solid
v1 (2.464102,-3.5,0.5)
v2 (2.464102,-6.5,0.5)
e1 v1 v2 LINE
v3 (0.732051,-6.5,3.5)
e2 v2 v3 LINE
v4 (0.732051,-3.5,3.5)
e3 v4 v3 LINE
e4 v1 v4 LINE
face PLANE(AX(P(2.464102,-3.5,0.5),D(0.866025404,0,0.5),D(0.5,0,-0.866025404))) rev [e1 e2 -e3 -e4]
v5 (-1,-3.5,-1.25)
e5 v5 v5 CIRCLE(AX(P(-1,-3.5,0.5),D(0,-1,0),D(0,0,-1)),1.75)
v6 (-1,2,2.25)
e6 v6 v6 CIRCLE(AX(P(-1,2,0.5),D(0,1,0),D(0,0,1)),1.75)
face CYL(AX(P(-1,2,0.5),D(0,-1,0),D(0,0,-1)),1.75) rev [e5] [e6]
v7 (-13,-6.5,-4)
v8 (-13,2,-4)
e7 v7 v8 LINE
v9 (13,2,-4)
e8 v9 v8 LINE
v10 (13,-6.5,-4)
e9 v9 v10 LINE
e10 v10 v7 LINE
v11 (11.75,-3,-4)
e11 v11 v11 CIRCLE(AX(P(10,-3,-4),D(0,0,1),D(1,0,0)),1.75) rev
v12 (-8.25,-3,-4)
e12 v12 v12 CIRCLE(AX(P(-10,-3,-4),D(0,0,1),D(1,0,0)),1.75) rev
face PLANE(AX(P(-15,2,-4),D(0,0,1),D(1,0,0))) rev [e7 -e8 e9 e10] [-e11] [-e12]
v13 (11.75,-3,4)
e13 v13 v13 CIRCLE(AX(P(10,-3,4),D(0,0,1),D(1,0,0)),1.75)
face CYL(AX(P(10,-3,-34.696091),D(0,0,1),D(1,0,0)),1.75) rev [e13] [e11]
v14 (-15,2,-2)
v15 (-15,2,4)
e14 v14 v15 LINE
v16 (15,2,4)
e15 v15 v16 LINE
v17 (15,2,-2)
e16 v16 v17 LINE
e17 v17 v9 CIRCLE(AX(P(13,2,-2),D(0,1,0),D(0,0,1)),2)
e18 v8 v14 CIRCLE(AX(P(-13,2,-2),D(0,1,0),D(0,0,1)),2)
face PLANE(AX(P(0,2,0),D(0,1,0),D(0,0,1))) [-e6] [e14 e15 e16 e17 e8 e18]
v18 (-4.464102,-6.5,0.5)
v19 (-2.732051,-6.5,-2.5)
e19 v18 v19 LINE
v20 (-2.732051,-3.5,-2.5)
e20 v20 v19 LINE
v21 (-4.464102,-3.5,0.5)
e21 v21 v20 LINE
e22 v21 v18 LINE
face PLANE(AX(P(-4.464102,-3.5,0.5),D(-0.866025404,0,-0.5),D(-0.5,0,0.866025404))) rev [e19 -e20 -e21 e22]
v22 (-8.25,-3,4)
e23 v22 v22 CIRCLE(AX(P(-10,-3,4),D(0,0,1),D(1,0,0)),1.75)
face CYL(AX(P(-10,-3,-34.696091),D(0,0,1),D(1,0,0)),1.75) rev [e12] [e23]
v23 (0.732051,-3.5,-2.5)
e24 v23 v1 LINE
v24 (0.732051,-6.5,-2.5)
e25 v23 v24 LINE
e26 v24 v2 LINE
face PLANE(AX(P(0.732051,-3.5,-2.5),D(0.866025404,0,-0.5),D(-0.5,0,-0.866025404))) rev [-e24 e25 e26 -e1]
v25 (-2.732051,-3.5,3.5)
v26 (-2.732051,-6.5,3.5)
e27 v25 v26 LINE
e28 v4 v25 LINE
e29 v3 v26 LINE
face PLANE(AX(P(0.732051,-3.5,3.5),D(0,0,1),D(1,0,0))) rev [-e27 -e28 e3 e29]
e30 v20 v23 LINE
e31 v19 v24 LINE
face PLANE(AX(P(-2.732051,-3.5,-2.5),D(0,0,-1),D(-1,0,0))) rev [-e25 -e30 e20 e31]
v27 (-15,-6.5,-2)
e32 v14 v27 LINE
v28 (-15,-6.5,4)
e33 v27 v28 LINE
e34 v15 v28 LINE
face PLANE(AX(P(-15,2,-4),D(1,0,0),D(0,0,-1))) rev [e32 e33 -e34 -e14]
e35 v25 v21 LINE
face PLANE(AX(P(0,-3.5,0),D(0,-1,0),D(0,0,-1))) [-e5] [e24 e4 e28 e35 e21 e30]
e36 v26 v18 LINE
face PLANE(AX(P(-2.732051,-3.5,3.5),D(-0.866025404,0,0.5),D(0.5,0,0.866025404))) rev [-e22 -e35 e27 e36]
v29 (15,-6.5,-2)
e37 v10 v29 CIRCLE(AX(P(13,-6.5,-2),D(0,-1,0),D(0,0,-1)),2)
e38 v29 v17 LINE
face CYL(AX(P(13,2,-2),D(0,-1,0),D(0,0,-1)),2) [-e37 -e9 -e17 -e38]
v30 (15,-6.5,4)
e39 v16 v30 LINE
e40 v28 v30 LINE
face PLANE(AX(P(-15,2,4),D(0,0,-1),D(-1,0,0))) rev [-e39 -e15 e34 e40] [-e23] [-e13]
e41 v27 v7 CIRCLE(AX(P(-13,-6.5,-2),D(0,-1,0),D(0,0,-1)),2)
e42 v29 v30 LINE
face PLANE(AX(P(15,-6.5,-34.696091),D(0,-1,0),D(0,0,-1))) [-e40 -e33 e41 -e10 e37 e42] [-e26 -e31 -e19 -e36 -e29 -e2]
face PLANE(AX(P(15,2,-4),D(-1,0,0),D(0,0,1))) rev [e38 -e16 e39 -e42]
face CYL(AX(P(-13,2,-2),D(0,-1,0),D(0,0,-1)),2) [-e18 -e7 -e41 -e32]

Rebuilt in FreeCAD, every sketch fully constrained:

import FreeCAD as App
import Part
import Sketcher
from FreeCAD import Vector
Q = App.Units.Quantity


def edges_at(feature, points):
    """Names of the edges that pass closest to the given points."""
    edges = feature.Shape.Edges
    near = lambda p: min(range(len(edges)), key=lambda i: edges[i].distToShape(Part.Vertex(*p))[0])
    return sorted({f"Edge{near(p) + 1}" for p in points})


def add_polygon(sketch, points):
    """Adds a closed chain of lines whose ends are joined by coincident constraints."""
    first, n = sketch.GeometryCount, len(points)
    for a, b in zip(points, points[1:] + points[:1]):
        sketch.addGeometry(Part.LineSegment(App.Vector(*a, 0), App.Vector(*b, 0)), False)
    for i in range(n):
        sketch.addConstraint(Sketcher.Constraint("Coincident", first + i, 2, first + (i + 1) % n, 1))

doc = App.newDocument("Part")
body = doc.addObject("PartDesign::Body", "Body")

sketch1 = body.newObject("Sketcher::SketchObject", "Sketch")
sketch1.AttachmentSupport = (doc.getObject("XZ_Plane"), [""])
sketch1.MapMode = "FlatFace"
add_polygon(sketch1, [(-15, -4), (-15, 4), (15, 4), (15, -4)])
sketch1.addGeometry(Part.Circle(Vector(-1, 0.5, 0), Vector(0, 0, 1), 1.8), False)
sketch1.addConstraint([
    Sketcher.Constraint("Vertical", 0),
    Sketcher.Constraint("Horizontal", 1),
    Sketcher.Constraint("Vertical", 2),
    Sketcher.Constraint("Horizontal", 3),
    Sketcher.Constraint("Symmetric", 0, 2, 2, 2, -1, 1),
    Sketcher.Constraint("Diameter", 4, 3.5),
    Sketcher.Constraint("DistanceX", 1, 1, 1, 2, 30.0),
    Sketcher.Constraint("DistanceY", 0, 1, 0, 2, 8.0),
    Sketcher.Constraint("DistanceX", 4, 3, -1, 1, 1.0),
    Sketcher.Constraint("DistanceY", -1, 1, 4, 3, 0.5),
])
pad1 = body.newObject("PartDesign::Pad", "Pad")
pad1.Profile = sketch1
pad1.Length = 2
pad1.Reversed = True

sketch2 = body.newObject("Sketcher::SketchObject", "Sketch001")
sketch2.AttachmentSupport = (doc.getObject("XY_Plane"), [""])
sketch2.MapMode = "FlatFace"
sketch2.AttachmentOffset = App.Placement(Vector(0, 0, 4), App.Rotation())
add_polygon(sketch2, [(15, 0), (-15, 0), (-15, -6.5), (15, -6.5)])
sketch2.addGeometry(Part.Circle(Vector(10, -3, 0), Vector(0, 0, 1), 1.8), False)
sketch2.addGeometry(Part.Circle(Vector(-10, -3, 0), Vector(0, 0, 1), 1.8), False)
sketch2.addConstraint([
    Sketcher.Constraint("Horizontal", 0),
    Sketcher.Constraint("Vertical", 1),
    Sketcher.Constraint("Horizontal", 2),
    Sketcher.Constraint("Vertical", 3),
    Sketcher.Constraint("Equal", 4, 5),
    Sketcher.Constraint("Symmetric", 0, 2, 3, 2, -1, 1),
    Sketcher.Constraint("Symmetric", 4, 3, 5, 3, -2),
    Sketcher.Constraint("Diameter", 4, 3.5),
    Sketcher.Constraint("DistanceX", 0, 2, 0, 1, 30.0),
    Sketcher.Constraint("DistanceY", 1, 2, 1, 1, 6.5),
    Sketcher.Constraint("DistanceX", -1, 1, 4, 3, 10.0),
    Sketcher.Constraint("DistanceY", 4, 3, -1, 1, 3.0),
])
pad2 = body.newObject("PartDesign::Pad", "Pad001")
pad2.Profile = sketch2
pad2.Length = 8
pad2.Reversed = True
doc.recompute()

fillet = body.newObject("PartDesign::Fillet", "Fillet")
fillet.Base = (pad2, edges_at(pad2, [(-15, -2.25, -4), (15, -2.25, -4)]))
fillet.Radius = 2

sketch3 = body.newObject("Sketcher::SketchObject", "Sketch002")
sketch3.AttachmentSupport = (doc.getObject("XZ_Plane"), [""])
sketch3.MapMode = "FlatFace"
sketch3.addGeometry(Part.Circle(Vector(-1, 0.5, 0), Vector(0, 0, 1), 1.8), False)
sketch3.addConstraint([
    Sketcher.Constraint("Diameter", 0, 3.5),
    Sketcher.Constraint("DistanceX", 0, 3, -1, 1, 1.0),
    Sketcher.Constraint("DistanceY", -1, 1, 0, 3, 0.5),
])
pocket1 = body.newObject("PartDesign::Pocket", "Pocket")
pocket1.Profile = sketch3
pocket1.Type = "ThroughAll"
pocket1.Reversed = True

sketch4 = body.newObject("Sketcher::SketchObject", "Sketch003")
sketch4.AttachmentSupport = (doc.getObject("XZ_Plane"), [""])
sketch4.MapMode = "FlatFace"
sketch4.AttachmentOffset = App.Placement(Vector(0, 0, 6.5), App.Rotation())
add_polygon(sketch4, [(2.5, 0.5), (0.7, 3.5), (-2.7, 3.5), (-4.5, 0.5), (-2.7, -2.5), (0.7, -2.5)])
sketch4.addConstraint([
    Sketcher.Constraint("Horizontal", 1),
    Sketcher.Constraint("Horizontal", 4),
    Sketcher.Constraint("Parallel", 0, 3),
    Sketcher.Constraint("Parallel", 2, 5),
    Sketcher.Constraint("Horizontal", 2, 2, 5, 2),
    Sketcher.Constraint("Vertical", 1, 2, 3, 2),
    Sketcher.Constraint("Vertical", 0, 2, 4, 2),
    Sketcher.Constraint("Angle", 0, Q("120 deg")),
    Sketcher.Constraint("DistanceY", 2, 2, 1, 2, 3.0),
    Sketcher.Constraint("DistanceY", -1, 1, 0, 2, 3.5),
    Sketcher.Constraint("DistanceX", 1, 2, 1, 1, 3.464102),
    Sketcher.Constraint("DistanceX", 2, 2, -1, 1, 4.464102),
])
pocket2 = body.newObject("PartDesign::Pocket", "Pocket001")
pocket2.Profile = sketch4
pocket2.Length = 3

doc.recompute()
